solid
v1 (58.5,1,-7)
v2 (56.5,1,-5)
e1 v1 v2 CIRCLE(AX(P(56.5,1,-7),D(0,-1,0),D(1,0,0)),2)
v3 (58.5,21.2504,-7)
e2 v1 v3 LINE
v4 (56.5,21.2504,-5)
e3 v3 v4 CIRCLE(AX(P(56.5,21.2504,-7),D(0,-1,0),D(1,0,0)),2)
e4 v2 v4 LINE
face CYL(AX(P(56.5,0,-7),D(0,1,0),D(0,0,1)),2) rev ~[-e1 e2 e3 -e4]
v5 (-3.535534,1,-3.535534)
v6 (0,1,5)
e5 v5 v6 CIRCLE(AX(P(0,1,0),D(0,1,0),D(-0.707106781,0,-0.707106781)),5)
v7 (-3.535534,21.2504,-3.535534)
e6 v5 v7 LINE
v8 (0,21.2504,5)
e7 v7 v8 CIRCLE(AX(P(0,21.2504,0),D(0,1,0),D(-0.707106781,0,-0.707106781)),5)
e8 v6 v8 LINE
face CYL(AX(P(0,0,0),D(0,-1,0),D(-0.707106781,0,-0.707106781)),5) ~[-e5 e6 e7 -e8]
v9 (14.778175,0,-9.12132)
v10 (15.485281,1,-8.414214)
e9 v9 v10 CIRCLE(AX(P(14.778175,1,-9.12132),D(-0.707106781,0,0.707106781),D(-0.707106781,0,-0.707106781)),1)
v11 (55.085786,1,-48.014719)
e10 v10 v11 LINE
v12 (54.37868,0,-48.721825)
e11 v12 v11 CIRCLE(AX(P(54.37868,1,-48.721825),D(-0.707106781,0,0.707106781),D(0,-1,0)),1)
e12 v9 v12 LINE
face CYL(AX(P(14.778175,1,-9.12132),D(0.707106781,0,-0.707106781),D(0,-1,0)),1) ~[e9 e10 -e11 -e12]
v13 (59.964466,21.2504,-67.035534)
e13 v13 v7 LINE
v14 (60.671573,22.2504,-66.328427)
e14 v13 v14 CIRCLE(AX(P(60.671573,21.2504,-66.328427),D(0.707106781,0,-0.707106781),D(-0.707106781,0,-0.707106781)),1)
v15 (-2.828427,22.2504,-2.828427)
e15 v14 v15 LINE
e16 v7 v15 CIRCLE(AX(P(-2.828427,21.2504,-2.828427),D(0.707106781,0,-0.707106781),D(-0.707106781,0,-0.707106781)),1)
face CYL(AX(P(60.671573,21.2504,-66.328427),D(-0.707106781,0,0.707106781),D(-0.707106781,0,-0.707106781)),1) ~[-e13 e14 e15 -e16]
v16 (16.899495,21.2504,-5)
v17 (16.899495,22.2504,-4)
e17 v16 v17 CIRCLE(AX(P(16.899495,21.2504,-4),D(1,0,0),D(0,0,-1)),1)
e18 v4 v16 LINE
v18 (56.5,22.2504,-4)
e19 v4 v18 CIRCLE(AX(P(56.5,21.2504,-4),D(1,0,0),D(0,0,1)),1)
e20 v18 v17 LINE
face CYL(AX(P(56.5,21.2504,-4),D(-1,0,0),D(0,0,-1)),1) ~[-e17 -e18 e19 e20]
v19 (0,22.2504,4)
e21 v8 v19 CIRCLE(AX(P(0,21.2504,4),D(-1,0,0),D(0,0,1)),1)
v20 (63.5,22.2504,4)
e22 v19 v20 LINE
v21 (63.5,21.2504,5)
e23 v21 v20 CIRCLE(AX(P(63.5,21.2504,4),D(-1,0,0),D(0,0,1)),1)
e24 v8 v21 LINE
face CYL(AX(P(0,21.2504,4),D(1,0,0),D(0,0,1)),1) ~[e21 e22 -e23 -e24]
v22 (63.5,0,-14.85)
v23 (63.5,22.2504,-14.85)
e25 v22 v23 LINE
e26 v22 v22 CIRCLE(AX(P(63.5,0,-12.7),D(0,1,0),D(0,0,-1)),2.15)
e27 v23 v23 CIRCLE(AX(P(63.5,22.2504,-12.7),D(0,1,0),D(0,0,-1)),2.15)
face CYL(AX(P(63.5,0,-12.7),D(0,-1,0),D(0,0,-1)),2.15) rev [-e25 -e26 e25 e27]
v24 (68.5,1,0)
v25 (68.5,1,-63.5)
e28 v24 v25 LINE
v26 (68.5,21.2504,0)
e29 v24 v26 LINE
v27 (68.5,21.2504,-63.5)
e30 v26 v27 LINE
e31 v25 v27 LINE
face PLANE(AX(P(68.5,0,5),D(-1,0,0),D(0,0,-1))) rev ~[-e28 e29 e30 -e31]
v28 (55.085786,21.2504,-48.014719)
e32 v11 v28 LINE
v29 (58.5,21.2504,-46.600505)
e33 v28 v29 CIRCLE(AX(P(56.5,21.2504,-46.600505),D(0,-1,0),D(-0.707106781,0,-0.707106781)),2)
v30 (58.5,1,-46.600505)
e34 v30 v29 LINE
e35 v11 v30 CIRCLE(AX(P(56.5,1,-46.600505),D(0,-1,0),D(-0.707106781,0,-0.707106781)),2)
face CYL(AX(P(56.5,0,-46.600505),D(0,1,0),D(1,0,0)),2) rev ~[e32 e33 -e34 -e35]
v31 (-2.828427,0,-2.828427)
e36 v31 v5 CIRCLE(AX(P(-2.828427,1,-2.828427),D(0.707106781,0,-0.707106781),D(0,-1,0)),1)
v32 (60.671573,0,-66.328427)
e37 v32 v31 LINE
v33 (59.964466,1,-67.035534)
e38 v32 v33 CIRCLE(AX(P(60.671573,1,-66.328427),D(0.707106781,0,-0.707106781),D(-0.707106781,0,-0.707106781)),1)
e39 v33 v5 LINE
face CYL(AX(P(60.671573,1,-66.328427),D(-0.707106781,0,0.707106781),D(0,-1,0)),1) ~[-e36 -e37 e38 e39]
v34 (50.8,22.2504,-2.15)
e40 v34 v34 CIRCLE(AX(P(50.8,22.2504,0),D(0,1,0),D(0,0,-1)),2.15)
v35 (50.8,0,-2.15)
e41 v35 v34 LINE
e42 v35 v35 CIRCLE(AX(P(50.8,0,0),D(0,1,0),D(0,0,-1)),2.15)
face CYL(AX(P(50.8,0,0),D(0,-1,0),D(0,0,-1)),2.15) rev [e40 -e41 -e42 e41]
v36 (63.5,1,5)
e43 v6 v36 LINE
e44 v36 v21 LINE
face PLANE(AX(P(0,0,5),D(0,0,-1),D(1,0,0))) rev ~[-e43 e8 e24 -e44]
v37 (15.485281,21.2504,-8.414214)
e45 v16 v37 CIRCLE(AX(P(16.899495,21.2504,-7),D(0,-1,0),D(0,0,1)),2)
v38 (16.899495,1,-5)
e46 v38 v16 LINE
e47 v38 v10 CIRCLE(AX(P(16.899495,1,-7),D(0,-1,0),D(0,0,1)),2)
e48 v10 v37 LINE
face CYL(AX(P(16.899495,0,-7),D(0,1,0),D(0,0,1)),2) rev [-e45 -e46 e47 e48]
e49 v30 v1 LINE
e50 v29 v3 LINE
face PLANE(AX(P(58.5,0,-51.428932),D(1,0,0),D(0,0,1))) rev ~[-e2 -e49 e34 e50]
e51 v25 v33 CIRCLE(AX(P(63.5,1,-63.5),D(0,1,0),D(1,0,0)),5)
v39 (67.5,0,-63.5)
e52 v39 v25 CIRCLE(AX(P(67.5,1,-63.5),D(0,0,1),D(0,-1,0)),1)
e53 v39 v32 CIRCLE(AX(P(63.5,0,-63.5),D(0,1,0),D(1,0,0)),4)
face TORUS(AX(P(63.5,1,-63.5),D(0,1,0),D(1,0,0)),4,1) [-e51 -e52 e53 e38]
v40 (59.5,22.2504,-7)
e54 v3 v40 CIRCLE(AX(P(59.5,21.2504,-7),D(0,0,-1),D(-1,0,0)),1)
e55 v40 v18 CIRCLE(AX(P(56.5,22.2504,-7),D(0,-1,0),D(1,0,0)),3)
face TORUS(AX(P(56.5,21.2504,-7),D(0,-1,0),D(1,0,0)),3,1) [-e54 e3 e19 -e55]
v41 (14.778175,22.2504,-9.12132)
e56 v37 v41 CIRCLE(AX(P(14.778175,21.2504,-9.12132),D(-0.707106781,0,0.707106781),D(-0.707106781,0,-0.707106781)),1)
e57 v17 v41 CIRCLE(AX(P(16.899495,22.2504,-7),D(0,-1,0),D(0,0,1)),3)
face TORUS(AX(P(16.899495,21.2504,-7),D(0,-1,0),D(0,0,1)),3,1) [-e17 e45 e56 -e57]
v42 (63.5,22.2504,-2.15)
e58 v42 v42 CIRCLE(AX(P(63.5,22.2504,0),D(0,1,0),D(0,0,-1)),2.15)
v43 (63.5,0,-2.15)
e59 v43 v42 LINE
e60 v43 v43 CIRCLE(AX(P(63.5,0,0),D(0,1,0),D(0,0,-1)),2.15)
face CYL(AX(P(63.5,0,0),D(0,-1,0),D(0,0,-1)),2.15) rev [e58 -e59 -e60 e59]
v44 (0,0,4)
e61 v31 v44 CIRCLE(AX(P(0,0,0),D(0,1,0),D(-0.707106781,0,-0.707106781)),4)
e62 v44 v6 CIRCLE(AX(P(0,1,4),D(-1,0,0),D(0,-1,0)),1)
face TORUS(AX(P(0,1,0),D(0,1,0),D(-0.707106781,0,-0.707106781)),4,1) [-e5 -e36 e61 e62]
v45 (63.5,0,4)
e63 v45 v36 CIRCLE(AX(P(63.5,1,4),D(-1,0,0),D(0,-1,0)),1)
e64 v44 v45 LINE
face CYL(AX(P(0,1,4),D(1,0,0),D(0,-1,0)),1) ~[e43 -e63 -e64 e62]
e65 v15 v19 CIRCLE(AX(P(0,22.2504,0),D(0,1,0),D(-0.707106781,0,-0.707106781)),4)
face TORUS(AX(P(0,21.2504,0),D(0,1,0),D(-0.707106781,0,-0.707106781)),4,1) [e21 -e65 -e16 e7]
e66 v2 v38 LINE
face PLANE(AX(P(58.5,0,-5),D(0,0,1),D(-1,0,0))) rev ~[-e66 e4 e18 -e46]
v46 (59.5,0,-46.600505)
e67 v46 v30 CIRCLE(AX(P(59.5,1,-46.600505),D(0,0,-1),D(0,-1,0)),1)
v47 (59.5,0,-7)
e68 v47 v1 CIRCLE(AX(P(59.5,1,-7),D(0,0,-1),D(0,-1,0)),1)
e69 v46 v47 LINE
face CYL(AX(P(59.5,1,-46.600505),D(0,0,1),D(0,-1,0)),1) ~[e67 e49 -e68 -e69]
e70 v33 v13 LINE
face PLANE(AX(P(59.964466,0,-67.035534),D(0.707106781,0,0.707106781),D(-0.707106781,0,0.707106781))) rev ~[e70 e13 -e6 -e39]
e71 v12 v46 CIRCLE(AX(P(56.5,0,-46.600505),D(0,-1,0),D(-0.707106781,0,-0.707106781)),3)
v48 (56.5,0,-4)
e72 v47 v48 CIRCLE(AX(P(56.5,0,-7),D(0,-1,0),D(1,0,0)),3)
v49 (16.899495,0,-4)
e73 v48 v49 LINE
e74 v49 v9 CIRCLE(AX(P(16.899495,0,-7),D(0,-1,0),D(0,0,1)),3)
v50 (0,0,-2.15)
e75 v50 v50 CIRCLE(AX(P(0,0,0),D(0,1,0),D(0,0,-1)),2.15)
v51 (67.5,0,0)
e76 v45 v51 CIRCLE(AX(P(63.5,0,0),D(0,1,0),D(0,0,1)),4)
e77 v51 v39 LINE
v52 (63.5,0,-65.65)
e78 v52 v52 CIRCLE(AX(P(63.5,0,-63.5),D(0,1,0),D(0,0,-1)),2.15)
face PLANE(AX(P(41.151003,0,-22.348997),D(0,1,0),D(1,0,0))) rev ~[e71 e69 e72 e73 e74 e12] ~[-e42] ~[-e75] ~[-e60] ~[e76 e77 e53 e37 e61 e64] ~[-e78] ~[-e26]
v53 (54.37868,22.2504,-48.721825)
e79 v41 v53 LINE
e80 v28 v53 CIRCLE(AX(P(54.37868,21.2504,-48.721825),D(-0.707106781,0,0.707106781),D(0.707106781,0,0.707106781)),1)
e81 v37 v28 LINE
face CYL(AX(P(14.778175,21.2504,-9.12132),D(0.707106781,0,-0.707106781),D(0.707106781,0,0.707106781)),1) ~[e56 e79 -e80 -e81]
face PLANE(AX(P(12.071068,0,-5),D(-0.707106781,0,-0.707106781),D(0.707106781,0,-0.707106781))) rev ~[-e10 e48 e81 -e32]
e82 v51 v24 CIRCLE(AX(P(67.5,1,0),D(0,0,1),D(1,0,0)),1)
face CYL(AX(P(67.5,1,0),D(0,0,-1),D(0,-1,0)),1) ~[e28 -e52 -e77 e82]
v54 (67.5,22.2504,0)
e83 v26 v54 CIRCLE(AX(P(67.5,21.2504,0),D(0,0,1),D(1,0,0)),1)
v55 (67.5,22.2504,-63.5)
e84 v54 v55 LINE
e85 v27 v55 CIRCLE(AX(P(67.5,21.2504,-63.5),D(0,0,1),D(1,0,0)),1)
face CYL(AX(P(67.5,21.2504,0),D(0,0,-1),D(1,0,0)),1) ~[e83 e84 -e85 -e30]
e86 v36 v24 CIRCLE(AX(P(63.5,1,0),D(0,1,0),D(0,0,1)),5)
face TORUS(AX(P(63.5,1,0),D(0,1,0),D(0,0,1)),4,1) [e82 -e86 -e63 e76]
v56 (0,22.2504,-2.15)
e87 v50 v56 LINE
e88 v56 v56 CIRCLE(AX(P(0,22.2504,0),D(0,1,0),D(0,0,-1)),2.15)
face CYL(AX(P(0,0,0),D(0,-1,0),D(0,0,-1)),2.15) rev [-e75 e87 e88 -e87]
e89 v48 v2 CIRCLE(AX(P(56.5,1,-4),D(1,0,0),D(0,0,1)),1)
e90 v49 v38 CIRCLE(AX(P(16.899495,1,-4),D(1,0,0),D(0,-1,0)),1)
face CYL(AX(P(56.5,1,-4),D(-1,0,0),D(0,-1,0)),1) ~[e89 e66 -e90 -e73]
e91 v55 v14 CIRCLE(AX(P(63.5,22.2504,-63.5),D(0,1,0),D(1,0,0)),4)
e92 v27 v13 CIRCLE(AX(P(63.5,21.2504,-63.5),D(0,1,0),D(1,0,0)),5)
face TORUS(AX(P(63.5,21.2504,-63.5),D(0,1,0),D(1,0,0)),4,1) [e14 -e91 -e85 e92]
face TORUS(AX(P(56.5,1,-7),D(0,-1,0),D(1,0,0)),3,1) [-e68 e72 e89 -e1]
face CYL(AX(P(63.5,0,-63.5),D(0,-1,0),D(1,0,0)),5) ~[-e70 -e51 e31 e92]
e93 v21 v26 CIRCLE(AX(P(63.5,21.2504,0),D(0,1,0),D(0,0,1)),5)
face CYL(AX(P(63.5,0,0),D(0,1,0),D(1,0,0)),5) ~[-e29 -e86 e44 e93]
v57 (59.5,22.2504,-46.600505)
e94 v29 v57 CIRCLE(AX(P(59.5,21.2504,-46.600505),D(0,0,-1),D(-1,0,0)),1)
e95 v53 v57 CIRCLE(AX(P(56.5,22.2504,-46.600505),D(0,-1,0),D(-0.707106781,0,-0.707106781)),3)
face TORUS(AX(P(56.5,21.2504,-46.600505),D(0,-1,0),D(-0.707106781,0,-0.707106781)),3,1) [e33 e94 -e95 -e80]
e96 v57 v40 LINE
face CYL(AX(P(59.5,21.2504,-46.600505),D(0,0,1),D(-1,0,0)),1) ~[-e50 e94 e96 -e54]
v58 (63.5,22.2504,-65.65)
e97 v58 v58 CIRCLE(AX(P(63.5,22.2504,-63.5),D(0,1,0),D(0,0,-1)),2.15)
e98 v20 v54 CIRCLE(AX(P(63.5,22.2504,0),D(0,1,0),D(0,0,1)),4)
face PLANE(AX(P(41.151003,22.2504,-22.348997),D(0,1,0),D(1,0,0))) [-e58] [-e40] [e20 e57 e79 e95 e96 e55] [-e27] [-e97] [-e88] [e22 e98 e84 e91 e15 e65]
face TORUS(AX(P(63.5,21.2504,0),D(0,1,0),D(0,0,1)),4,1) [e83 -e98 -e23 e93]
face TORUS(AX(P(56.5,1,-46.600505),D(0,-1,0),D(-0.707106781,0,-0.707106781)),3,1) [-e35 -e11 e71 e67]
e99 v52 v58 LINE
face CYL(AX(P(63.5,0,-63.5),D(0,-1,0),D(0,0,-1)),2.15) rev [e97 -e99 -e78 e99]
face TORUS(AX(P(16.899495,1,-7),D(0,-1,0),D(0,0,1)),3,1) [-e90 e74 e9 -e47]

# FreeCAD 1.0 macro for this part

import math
import FreeCAD as App
import Part
import Sketcher

V = App.Vector
Q = App.Units.Quantity


def edges_at(feature, points):
    """Names of the edges that pass closest to the given points."""
    edges = feature.Shape.Edges
    near = lambda p: min(range(len(edges)), key=lambda i: edges[i].distToShape(Part.Vertex(*p))[0])
    return sorted({f"Edge{near(p) + 1}" for p in points})


def add_polygon(sketch, points):
    """Adds a closed chain of lines whose ends are joined by coincident constraints."""
    first, n = sketch.GeometryCount, len(points)
    for a, b in zip(points, points[1:] + points[:1]):
        sketch.addGeometry(Part.LineSegment(App.Vector(*a, 0), App.Vector(*b, 0)), False)
    for i in range(n):
        sketch.addConstraint(Sketcher.Constraint("Coincident", first + i, 2, first + (i + 1) % n, 1))

doc = App.newDocument("Part")
body = doc.addObject("PartDesign::Body", "Body")

# Sketch on XZ plane
sketch1 = body.newObject("Sketcher::SketchObject", "Sketch")
sketch1.AttachmentSupport = (doc.getObject("XZ_Plane"), [""])
sketch1.MapMode = "FlatFace"
sketch1.addGeometry(Part.LineSegment(V(60, -67, 0), V(-3.5, -3.5, 0)), False)  # 0
sketch1.addGeometry(Part.ArcOfCircle(Part.Circle(V(0, 0, 0), V(0, 0, 1), 5), math.radians(90), math.radians(225)), False)  # 1
sketch1.addGeometry(Part.LineSegment(V(0, 5, 0), V(68.5, 5, 0)), False)  # 2
sketch1.addGeometry(Part.LineSegment(V(68.5, 5, 0), V(68.5, -63.5, 0)), False)  # 3
sketch1.addGeometry(Part.ArcOfCircle(Part.Circle(V(63.5, -63.5, 0), V(0, 0, 1), 5), math.radians(-135), math.radians(0)), False)  # 4
sketch1.addGeometry(Part.Circle(V(0, 0, 0), V(0, 0, 1), 2.1), False)  # 5
sketch1.addGeometry(Part.Circle(V(50.8, 0, 0), V(0, 0, 1), 2.1), False)  # 6
sketch1.addGeometry(Part.Circle(V(63.5, 0, 0), V(0, 0, 1), 2.1), False)  # 7
sketch1.addGeometry(Part.Circle(V(63.5, -12.7, 0), V(0, 0, 1), 2.1), False)  # 8
add_polygon(sketch1, [(58.5, -5), (12.1, -5), (58.5, -51.4)])  # lines 9-11
sketch1.addGeometry(Part.Circle(V(63.5, -63.5, 0), V(0, 0, 1), 2.1), False)  # 12
sketch1.addConstraint(Sketcher.Constraint("Tangent", 0, 2, 1, 2))
sketch1.addConstraint(Sketcher.Constraint("Tangent", 1, 1, 2, 1))
sketch1.addConstraint(Sketcher.Constraint("Coincident", 2, 2, 3, 1))
sketch1.addConstraint(Sketcher.Constraint("Tangent", 3, 2, 4, 2))
sketch1.addConstraint(Sketcher.Constraint("Tangent", 4, 1, 0, 1))
sketch1.addConstraint(Sketcher.Constraint("Horizontal", 2))
sketch1.addConstraint(Sketcher.Constraint("Vertical", 3))
sketch1.addConstraint(Sketcher.Constraint("Horizontal", 9))
sketch1.addConstraint(Sketcher.Constraint("Vertical", 11))
sketch1.addConstraint(Sketcher.Constraint("Coincident", 1, 3, -1, 1))
sketch1.addConstraint(Sketcher.Constraint("Coincident", 5, 3, -1, 1))
sketch1.addConstraint(Sketcher.Constraint("Coincident", 12, 3, 4, 3))
sketch1.addConstraint(Sketcher.Constraint("Equal", 1, 4))
sketch1.addConstraint(Sketcher.Constraint("Equal", 5, 6))
sketch1.addConstraint(Sketcher.Constraint("Equal", 6, 7))
sketch1.addConstraint(Sketcher.Constraint("Equal", 7, 8))
sketch1.addConstraint(Sketcher.Constraint("Equal", 8, 12))
sketch1.addConstraint(Sketcher.Constraint("PointOnObject", 6, 3, -1))
sketch1.addConstraint(Sketcher.Constraint("PointOnObject", 7, 3, -1))
sketch1.addConstraint(Sketcher.Constraint("Parallel", 0, 10))
sketch1.addConstraint(Sketcher.Constraint("Vertical", 4, 3, 7, 3))
sketch1.addConstraint(Sketcher.Constraint("Vertical", 7, 3, 8, 3))
sketch1.addConstraint(Sketcher.Constraint("Equal", 2, 3))
sketch1.addConstraint(Sketcher.Constraint("Radius", 1, Q("5 mm")))
sketch1.addConstraint(Sketcher.Constraint("Diameter", 5, Q("4.3 mm")))
sketch1.addConstraint(Sketcher.Constraint("DistanceX", 2, 1, 2, 2, Q("68.5 mm")))
sketch1.addConstraint(Sketcher.Constraint("DistanceY", 9, 2, -1, 1, Q("5 mm")))
sketch1.addConstraint(Sketcher.Constraint("DistanceX", 10, 2, 12, 3, Q("5 mm")))
sketch1.addConstraint(Sketcher.Constraint("DistanceX", -1, 1, 6, 3, Q("50.8 mm")))
sketch1.addConstraint(Sketcher.Constraint("DistanceY", 8, 3, -1, 1, Q("12.7 mm")))
sketch1.addConstraint(Sketcher.Constraint("DistanceX", 0, 2, 9, 2, Q("15.606602 mm")))
pad1 = body.newObject("PartDesign::Pad", "Pad")
pad1.Profile = sketch1
pad1.Length = 22.2504
pad1.Reversed = True
doc.recompute()

fillet = body.newObject("PartDesign::Fillet", "Fillet")
fillet.Base = (pad1, edges_at(pad1, [(68.5, 11.125, 5)]))
fillet.Radius = 5
doc.recompute()

fillet2 = body.newObject("PartDesign::Fillet", "Fillet001")
fillet2.Base = (fillet, edges_at(fillet, [(58.5, 11.125, -5), (58.5, 11.125, -51.429), (12.071, 11.125, -5)]))
fillet2.Radius = 2
doc.recompute()

fillet3 = body.newObject("PartDesign::Fillet", "Fillet002")
fillet3.Base = (fillet2, edges_at(fillet2, [
    (68.5, 22.25, -31.75),
    (65.413, 22.25, -68.119),
    (31.75, 0, 5),
    (-4.619, 0, 1.913),
    (28.214, 22.25, -35.286),
    (28.214, 0, -35.286),
    (65.413, 0, -68.119),
    (68.5, 0, -31.75),
    (-4.619, 22.25, 1.913),
    (31.75, 22.25, 5),
    (67.036, 0, 3.536),
    (67.036, 22.25, 3.536),
    (58.5, 0, -26.8),
    (58.5, 22.25, -26.8),
    (35.286, 0, -28.214),
    (35.286, 22.25, -28.214),
    (36.7, 0, -5),
    (36.7, 22.25, -5),
    (57.265, 0, -48.448),
    (57.265, 22.25, -48.448),
    (57.914, 0, -5.586),
    (57.914, 22.25, -5.586),
    (15.052, 0, -6.235),
    (15.052, 22.25, -6.235),
]))
fillet3.Radius = 1

doc.recompute()
